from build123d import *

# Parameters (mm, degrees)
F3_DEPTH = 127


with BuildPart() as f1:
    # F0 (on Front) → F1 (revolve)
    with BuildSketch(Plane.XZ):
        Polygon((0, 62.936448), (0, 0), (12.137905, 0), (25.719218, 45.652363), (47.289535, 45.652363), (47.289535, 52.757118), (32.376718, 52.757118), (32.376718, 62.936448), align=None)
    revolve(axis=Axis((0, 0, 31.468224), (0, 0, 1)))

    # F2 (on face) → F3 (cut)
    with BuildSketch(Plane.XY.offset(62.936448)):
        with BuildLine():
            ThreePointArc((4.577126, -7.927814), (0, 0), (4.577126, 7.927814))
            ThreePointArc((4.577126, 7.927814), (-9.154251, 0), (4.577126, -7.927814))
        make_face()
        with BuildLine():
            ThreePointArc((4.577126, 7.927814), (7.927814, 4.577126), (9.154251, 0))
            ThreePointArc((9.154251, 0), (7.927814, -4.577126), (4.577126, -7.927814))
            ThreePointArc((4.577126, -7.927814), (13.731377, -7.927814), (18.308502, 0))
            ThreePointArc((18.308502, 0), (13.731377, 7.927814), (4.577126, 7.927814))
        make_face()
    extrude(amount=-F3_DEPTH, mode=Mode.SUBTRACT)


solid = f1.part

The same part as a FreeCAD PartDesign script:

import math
import FreeCAD as App
import Part
import Sketcher

V = App.Vector
Q = App.Units.Quantity


def add_polygon(sketch, points):
    """Adds a closed chain of lines whose ends are joined by coincident constraints."""
    first, n = sketch.GeometryCount, len(points)
    for a, b in zip(points, points[1:] + points[:1]):
        sketch.addGeometry(Part.LineSegment(App.Vector(*a, 0), App.Vector(*b, 0)), False)
    for i in range(n):
        sketch.addConstraint(Sketcher.Constraint("Coincident", first + i, 2, first + (i + 1) % n, 1))

doc = App.newDocument("Part")
body = doc.addObject("PartDesign::Body", "Body")
body.AllowCompound = True

# Sketch on XZ plane
sketch1 = body.newObject("Sketcher::SketchObject", "Sketch")
sketch1.AttachmentSupport = (doc.getObject("XZ_Plane"), [""])
sketch1.MapMode = "FlatFace"
add_polygon(sketch1, [(0, 63), (0, 0), (12, 0), (26, 46), (47, 46), (47, 53), (32, 53), (32, 63)])  # lines 0-7
sketch1.addConstraint(Sketcher.Constraint("Vertical", 0))
sketch1.addConstraint(Sketcher.Constraint("Horizontal", 1))
sketch1.addConstraint(Sketcher.Constraint("Horizontal", 3))
sketch1.addConstraint(Sketcher.Constraint("Vertical", 4))
sketch1.addConstraint(Sketcher.Constraint("Horizontal", 5))
sketch1.addConstraint(Sketcher.Constraint("Vertical", 6))
sketch1.addConstraint(Sketcher.Constraint("Horizontal", 7))
sketch1.addConstraint(Sketcher.Constraint("Coincident", 0, 2, -1, 1))
sketch1.addConstraint(Sketcher.Constraint("DistanceY", 6, 1, 6, 2, Q("10.17933 mm")))
sketch1.addConstraint(Sketcher.Constraint("DistanceX", 2, 2, 5, 2, Q("6.6575 mm")))
sketch1.addConstraint(Sketcher.Constraint("Distance", 2, Q("47.629721 mm")))
sketch1.addConstraint(Sketcher.Constraint("DistanceX", 1, 1, 1, 2, Q("12.137905 mm")))
sketch1.addConstraint(Sketcher.Constraint("DistanceX", 3, 1, 3, 2, Q("21.570317 mm")))
sketch1.addConstraint(Sketcher.Constraint("DistanceX", 7, 2, 7, 1, Q("32.376718 mm")))
sketch1.addConstraint(Sketcher.Constraint("DistanceY", 0, 2, 0, 1, Q("62.936448 mm")))
revolution = body.newObject("PartDesign::Revolution", "Revolution")
revolution.Profile = sketch1
revolution.ReferenceAxis = (sketch1, ["V_Axis"])
revolution.Angle = 360

# Sketch on XY plane
sketch2 = body.newObject("Sketcher::SketchObject", "Sketch001")
sketch2.AttachmentSupport = (doc.getObject("XY_Plane"), [""])
sketch2.MapMode = "FlatFace"
sketch2.AttachmentOffset = App.Placement(V(0, 0, 62.936448), App.Rotation())
sketch2.addGeometry(Part.ArcOfCircle(Part.Circle(V(9, 0, 0), V(0, 0, 1), 9), math.radians(120), math.radians(240)), False)
sketch2.addGeometry(Part.ArcOfCircle(Part.Circle(V(0, 0, 0), V(0, 0, 1), 9), math.radians(60), math.radians(300)), False)
sketch2.addGeometry(Part.ArcOfCircle(Part.Circle(V(0, 0, 0), V(0, 0, 1), 9), math.radians(0), math.radians(60)), False)
sketch2.addGeometry(Part.ArcOfCircle(Part.Circle(V(0, 0, 0), V(0, 0, 1), 9), math.radians(-60), math.radians(0)), False)
sketch2.addGeometry(Part.ArcOfCircle(Part.Circle(V(9, 0, 0), V(0, 0, 1), 9), math.radians(-120), math.radians(0)), False)
sketch2.addGeometry(Part.ArcOfCircle(Part.Circle(V(9, 0, 0), V(0, 0, 1), 9), math.radians(0), math.radians(120)), False)
sketch2.addConstraint(Sketcher.Constraint("Coincident", 0, 1, 1, 1))
sketch2.addConstraint(Sketcher.Constraint("Coincident", 1, 2, 0, 2))
sketch2.addConstraint(Sketcher.Constraint("Tangent", 2, 1, 3, 2))
sketch2.addConstraint(Sketcher.Constraint("Coincident", 3, 1, 4, 1))
sketch2.addConstraint(Sketcher.Constraint("Tangent", 4, 2, 5, 1))
sketch2.addConstraint(Sketcher.Constraint("Coincident", 5, 2, 2, 2))
sketch2.addConstraint(Sketcher.Constraint("Coincident", 1, 3, -1, 1))
sketch2.addConstraint(Sketcher.Constraint("Coincident", 2, 3, -1, 1))
sketch2.addConstraint(Sketcher.Constraint("Coincident", 4, 3, 0, 3))
sketch2.addConstraint(Sketcher.Constraint("Coincident", 2, 1, 0, 3))
sketch2.addConstraint(Sketcher.Constraint("Coincident", 3, 1, 1, 2))
sketch2.addConstraint(Sketcher.Constraint("Coincident", 5, 2, 0, 1))
sketch2.addConstraint(Sketcher.Constraint("Equal", 0, 1))
sketch2.addConstraint(Sketcher.Constraint("PointOnObject", 0, 3, -1))
sketch2.addConstraint(Sketcher.Constraint("PointOnObject", 4, 2, -1))
sketch2.addConstraint(Sketcher.Constraint("Radius", 0, Q("9.154251 mm")))
pocket1 = body.newObject("PartDesign::Pocket", "Pocket")
pocket1.Profile = sketch2
pocket1.Length = Q("5 in")

doc.recompute()
